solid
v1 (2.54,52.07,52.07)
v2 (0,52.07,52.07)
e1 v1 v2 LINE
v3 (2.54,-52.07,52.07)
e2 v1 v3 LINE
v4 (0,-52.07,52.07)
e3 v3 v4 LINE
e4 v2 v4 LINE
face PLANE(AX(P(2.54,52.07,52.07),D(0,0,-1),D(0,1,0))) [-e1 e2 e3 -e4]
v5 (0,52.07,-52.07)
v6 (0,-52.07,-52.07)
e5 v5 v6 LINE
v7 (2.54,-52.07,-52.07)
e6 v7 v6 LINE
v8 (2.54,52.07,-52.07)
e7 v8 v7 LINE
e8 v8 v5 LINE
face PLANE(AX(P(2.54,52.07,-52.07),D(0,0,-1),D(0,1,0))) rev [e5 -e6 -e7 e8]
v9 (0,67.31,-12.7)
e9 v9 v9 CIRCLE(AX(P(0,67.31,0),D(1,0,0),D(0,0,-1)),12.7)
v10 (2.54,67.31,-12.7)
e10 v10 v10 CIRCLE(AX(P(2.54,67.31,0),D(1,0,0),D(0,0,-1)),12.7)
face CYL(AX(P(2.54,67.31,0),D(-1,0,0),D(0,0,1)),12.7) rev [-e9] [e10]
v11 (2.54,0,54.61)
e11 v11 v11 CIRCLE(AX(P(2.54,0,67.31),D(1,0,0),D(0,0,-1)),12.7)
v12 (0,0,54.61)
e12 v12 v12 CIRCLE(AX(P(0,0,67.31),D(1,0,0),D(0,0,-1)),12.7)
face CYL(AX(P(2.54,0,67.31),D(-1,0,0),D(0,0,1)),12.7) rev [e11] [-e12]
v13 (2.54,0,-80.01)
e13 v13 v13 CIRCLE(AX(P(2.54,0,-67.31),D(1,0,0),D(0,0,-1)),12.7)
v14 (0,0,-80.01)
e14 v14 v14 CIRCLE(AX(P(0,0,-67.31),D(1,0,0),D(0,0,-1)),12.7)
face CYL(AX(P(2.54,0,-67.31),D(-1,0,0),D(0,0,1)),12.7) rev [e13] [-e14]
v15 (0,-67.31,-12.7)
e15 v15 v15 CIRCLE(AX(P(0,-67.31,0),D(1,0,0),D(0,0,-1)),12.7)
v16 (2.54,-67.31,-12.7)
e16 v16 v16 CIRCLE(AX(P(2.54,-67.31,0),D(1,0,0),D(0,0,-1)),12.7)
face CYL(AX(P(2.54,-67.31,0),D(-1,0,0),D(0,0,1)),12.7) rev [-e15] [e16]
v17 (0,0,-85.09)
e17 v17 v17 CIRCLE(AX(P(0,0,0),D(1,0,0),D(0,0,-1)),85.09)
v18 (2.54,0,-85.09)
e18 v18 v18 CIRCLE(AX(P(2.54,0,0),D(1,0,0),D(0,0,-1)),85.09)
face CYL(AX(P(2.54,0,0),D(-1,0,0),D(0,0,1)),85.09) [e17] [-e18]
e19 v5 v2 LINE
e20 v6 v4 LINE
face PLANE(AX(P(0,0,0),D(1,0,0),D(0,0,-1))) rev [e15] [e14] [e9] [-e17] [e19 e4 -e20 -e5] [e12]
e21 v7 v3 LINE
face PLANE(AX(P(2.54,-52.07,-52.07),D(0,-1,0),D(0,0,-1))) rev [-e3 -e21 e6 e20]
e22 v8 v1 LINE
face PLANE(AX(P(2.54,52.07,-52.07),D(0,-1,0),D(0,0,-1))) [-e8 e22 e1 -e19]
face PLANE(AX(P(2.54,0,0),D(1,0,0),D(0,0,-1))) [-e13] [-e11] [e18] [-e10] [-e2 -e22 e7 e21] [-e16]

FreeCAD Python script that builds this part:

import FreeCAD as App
import Part
import Sketcher

V = App.Vector
Q = App.Units.Quantity


def add_polygon(sketch, points):
    """Adds a closed chain of lines whose ends are joined by coincident constraints."""
    first, n = sketch.GeometryCount, len(points)
    for a, b in zip(points, points[1:] + points[:1]):
        sketch.addGeometry(Part.LineSegment(App.Vector(*a, 0), App.Vector(*b, 0)), False)
    for i in range(n):
        sketch.addConstraint(Sketcher.Constraint("Coincident", first + i, 2, first + (i + 1) % n, 1))

doc = App.newDocument("Part")
body = doc.addObject("PartDesign::Body", "Body")

sketch1 = body.newObject("Sketcher::SketchObject", "Sketch")
sketch1.AttachmentSupport = (doc.getObject("YZ_Plane"), [""])
sketch1.MapMode = "FlatFace"
sketch1.addGeometry(Part.Circle(V(0, 0, 0), V(0, 0, 1), 85.09), False)
sketch1.addGeometry(Part.Circle(V(0, 67.31, 0), V(0, 0, 1), 12.7), False)
sketch1.addGeometry(Part.Circle(V(-67.31, 0, 0), V(0, 0, 1), 12.7), False)
sketch1.addGeometry(Part.Circle(V(67.31, 0, 0), V(0, 0, 1), 12.7), False)
add_polygon(sketch1, [(52.07, -52.07), (-52.07, -52.07), (-52.07, 52.07), (52.07, 52.07)])
sketch1.addGeometry(Part.Circle(V(0, -67.31, 0), V(0, 0, 1), 12.7), False)
sketch1.addConstraint([
    Sketcher.Constraint("Horizontal", 4),
    Sketcher.Constraint("Vertical", 5),
    Sketcher.Constraint("Horizontal", 6),
    Sketcher.Constraint("Vertical", 7),
    Sketcher.Constraint("Coincident", 0, 3, -1, 1),
    Sketcher.Constraint("Equal", 1, 2),
    Sketcher.Constraint("Equal", 2, 3),
    Sketcher.Constraint("Equal", 3, 8),
    Sketcher.Constraint("Symmetric", 2, 3, 3, 3, -1, 1),
    Sketcher.Constraint("Symmetric", 1, 3, 8, 3, -1, 1),
    Sketcher.Constraint("Symmetric", 4, 2, 6, 2, -1, 1),
    Sketcher.Constraint("PointOnObject", 1, 3, -2),
    Sketcher.Constraint("PointOnObject", 2, 3, -1),
    Sketcher.Constraint("Equal", 6, 5),
    Sketcher.Constraint("Diameter", 1, Q("1 in")),
    Sketcher.Constraint("Diameter", 0, Q("6.7 in")),
    Sketcher.Constraint("DistanceX", 4, 2, 4, 1, Q("4.1 in")),
    Sketcher.Constraint("DistanceX", 2, 3, 3, 3, Q("5.3 in")),
    Sketcher.Constraint("DistanceY", 8, 3, 1, 3, Q("5.3 in")),
])
pad1 = body.newObject("PartDesign::Pad", "Pad")
pad1.Profile = sketch1
pad1.Length = Q("0.1 in")

doc.recompute()
